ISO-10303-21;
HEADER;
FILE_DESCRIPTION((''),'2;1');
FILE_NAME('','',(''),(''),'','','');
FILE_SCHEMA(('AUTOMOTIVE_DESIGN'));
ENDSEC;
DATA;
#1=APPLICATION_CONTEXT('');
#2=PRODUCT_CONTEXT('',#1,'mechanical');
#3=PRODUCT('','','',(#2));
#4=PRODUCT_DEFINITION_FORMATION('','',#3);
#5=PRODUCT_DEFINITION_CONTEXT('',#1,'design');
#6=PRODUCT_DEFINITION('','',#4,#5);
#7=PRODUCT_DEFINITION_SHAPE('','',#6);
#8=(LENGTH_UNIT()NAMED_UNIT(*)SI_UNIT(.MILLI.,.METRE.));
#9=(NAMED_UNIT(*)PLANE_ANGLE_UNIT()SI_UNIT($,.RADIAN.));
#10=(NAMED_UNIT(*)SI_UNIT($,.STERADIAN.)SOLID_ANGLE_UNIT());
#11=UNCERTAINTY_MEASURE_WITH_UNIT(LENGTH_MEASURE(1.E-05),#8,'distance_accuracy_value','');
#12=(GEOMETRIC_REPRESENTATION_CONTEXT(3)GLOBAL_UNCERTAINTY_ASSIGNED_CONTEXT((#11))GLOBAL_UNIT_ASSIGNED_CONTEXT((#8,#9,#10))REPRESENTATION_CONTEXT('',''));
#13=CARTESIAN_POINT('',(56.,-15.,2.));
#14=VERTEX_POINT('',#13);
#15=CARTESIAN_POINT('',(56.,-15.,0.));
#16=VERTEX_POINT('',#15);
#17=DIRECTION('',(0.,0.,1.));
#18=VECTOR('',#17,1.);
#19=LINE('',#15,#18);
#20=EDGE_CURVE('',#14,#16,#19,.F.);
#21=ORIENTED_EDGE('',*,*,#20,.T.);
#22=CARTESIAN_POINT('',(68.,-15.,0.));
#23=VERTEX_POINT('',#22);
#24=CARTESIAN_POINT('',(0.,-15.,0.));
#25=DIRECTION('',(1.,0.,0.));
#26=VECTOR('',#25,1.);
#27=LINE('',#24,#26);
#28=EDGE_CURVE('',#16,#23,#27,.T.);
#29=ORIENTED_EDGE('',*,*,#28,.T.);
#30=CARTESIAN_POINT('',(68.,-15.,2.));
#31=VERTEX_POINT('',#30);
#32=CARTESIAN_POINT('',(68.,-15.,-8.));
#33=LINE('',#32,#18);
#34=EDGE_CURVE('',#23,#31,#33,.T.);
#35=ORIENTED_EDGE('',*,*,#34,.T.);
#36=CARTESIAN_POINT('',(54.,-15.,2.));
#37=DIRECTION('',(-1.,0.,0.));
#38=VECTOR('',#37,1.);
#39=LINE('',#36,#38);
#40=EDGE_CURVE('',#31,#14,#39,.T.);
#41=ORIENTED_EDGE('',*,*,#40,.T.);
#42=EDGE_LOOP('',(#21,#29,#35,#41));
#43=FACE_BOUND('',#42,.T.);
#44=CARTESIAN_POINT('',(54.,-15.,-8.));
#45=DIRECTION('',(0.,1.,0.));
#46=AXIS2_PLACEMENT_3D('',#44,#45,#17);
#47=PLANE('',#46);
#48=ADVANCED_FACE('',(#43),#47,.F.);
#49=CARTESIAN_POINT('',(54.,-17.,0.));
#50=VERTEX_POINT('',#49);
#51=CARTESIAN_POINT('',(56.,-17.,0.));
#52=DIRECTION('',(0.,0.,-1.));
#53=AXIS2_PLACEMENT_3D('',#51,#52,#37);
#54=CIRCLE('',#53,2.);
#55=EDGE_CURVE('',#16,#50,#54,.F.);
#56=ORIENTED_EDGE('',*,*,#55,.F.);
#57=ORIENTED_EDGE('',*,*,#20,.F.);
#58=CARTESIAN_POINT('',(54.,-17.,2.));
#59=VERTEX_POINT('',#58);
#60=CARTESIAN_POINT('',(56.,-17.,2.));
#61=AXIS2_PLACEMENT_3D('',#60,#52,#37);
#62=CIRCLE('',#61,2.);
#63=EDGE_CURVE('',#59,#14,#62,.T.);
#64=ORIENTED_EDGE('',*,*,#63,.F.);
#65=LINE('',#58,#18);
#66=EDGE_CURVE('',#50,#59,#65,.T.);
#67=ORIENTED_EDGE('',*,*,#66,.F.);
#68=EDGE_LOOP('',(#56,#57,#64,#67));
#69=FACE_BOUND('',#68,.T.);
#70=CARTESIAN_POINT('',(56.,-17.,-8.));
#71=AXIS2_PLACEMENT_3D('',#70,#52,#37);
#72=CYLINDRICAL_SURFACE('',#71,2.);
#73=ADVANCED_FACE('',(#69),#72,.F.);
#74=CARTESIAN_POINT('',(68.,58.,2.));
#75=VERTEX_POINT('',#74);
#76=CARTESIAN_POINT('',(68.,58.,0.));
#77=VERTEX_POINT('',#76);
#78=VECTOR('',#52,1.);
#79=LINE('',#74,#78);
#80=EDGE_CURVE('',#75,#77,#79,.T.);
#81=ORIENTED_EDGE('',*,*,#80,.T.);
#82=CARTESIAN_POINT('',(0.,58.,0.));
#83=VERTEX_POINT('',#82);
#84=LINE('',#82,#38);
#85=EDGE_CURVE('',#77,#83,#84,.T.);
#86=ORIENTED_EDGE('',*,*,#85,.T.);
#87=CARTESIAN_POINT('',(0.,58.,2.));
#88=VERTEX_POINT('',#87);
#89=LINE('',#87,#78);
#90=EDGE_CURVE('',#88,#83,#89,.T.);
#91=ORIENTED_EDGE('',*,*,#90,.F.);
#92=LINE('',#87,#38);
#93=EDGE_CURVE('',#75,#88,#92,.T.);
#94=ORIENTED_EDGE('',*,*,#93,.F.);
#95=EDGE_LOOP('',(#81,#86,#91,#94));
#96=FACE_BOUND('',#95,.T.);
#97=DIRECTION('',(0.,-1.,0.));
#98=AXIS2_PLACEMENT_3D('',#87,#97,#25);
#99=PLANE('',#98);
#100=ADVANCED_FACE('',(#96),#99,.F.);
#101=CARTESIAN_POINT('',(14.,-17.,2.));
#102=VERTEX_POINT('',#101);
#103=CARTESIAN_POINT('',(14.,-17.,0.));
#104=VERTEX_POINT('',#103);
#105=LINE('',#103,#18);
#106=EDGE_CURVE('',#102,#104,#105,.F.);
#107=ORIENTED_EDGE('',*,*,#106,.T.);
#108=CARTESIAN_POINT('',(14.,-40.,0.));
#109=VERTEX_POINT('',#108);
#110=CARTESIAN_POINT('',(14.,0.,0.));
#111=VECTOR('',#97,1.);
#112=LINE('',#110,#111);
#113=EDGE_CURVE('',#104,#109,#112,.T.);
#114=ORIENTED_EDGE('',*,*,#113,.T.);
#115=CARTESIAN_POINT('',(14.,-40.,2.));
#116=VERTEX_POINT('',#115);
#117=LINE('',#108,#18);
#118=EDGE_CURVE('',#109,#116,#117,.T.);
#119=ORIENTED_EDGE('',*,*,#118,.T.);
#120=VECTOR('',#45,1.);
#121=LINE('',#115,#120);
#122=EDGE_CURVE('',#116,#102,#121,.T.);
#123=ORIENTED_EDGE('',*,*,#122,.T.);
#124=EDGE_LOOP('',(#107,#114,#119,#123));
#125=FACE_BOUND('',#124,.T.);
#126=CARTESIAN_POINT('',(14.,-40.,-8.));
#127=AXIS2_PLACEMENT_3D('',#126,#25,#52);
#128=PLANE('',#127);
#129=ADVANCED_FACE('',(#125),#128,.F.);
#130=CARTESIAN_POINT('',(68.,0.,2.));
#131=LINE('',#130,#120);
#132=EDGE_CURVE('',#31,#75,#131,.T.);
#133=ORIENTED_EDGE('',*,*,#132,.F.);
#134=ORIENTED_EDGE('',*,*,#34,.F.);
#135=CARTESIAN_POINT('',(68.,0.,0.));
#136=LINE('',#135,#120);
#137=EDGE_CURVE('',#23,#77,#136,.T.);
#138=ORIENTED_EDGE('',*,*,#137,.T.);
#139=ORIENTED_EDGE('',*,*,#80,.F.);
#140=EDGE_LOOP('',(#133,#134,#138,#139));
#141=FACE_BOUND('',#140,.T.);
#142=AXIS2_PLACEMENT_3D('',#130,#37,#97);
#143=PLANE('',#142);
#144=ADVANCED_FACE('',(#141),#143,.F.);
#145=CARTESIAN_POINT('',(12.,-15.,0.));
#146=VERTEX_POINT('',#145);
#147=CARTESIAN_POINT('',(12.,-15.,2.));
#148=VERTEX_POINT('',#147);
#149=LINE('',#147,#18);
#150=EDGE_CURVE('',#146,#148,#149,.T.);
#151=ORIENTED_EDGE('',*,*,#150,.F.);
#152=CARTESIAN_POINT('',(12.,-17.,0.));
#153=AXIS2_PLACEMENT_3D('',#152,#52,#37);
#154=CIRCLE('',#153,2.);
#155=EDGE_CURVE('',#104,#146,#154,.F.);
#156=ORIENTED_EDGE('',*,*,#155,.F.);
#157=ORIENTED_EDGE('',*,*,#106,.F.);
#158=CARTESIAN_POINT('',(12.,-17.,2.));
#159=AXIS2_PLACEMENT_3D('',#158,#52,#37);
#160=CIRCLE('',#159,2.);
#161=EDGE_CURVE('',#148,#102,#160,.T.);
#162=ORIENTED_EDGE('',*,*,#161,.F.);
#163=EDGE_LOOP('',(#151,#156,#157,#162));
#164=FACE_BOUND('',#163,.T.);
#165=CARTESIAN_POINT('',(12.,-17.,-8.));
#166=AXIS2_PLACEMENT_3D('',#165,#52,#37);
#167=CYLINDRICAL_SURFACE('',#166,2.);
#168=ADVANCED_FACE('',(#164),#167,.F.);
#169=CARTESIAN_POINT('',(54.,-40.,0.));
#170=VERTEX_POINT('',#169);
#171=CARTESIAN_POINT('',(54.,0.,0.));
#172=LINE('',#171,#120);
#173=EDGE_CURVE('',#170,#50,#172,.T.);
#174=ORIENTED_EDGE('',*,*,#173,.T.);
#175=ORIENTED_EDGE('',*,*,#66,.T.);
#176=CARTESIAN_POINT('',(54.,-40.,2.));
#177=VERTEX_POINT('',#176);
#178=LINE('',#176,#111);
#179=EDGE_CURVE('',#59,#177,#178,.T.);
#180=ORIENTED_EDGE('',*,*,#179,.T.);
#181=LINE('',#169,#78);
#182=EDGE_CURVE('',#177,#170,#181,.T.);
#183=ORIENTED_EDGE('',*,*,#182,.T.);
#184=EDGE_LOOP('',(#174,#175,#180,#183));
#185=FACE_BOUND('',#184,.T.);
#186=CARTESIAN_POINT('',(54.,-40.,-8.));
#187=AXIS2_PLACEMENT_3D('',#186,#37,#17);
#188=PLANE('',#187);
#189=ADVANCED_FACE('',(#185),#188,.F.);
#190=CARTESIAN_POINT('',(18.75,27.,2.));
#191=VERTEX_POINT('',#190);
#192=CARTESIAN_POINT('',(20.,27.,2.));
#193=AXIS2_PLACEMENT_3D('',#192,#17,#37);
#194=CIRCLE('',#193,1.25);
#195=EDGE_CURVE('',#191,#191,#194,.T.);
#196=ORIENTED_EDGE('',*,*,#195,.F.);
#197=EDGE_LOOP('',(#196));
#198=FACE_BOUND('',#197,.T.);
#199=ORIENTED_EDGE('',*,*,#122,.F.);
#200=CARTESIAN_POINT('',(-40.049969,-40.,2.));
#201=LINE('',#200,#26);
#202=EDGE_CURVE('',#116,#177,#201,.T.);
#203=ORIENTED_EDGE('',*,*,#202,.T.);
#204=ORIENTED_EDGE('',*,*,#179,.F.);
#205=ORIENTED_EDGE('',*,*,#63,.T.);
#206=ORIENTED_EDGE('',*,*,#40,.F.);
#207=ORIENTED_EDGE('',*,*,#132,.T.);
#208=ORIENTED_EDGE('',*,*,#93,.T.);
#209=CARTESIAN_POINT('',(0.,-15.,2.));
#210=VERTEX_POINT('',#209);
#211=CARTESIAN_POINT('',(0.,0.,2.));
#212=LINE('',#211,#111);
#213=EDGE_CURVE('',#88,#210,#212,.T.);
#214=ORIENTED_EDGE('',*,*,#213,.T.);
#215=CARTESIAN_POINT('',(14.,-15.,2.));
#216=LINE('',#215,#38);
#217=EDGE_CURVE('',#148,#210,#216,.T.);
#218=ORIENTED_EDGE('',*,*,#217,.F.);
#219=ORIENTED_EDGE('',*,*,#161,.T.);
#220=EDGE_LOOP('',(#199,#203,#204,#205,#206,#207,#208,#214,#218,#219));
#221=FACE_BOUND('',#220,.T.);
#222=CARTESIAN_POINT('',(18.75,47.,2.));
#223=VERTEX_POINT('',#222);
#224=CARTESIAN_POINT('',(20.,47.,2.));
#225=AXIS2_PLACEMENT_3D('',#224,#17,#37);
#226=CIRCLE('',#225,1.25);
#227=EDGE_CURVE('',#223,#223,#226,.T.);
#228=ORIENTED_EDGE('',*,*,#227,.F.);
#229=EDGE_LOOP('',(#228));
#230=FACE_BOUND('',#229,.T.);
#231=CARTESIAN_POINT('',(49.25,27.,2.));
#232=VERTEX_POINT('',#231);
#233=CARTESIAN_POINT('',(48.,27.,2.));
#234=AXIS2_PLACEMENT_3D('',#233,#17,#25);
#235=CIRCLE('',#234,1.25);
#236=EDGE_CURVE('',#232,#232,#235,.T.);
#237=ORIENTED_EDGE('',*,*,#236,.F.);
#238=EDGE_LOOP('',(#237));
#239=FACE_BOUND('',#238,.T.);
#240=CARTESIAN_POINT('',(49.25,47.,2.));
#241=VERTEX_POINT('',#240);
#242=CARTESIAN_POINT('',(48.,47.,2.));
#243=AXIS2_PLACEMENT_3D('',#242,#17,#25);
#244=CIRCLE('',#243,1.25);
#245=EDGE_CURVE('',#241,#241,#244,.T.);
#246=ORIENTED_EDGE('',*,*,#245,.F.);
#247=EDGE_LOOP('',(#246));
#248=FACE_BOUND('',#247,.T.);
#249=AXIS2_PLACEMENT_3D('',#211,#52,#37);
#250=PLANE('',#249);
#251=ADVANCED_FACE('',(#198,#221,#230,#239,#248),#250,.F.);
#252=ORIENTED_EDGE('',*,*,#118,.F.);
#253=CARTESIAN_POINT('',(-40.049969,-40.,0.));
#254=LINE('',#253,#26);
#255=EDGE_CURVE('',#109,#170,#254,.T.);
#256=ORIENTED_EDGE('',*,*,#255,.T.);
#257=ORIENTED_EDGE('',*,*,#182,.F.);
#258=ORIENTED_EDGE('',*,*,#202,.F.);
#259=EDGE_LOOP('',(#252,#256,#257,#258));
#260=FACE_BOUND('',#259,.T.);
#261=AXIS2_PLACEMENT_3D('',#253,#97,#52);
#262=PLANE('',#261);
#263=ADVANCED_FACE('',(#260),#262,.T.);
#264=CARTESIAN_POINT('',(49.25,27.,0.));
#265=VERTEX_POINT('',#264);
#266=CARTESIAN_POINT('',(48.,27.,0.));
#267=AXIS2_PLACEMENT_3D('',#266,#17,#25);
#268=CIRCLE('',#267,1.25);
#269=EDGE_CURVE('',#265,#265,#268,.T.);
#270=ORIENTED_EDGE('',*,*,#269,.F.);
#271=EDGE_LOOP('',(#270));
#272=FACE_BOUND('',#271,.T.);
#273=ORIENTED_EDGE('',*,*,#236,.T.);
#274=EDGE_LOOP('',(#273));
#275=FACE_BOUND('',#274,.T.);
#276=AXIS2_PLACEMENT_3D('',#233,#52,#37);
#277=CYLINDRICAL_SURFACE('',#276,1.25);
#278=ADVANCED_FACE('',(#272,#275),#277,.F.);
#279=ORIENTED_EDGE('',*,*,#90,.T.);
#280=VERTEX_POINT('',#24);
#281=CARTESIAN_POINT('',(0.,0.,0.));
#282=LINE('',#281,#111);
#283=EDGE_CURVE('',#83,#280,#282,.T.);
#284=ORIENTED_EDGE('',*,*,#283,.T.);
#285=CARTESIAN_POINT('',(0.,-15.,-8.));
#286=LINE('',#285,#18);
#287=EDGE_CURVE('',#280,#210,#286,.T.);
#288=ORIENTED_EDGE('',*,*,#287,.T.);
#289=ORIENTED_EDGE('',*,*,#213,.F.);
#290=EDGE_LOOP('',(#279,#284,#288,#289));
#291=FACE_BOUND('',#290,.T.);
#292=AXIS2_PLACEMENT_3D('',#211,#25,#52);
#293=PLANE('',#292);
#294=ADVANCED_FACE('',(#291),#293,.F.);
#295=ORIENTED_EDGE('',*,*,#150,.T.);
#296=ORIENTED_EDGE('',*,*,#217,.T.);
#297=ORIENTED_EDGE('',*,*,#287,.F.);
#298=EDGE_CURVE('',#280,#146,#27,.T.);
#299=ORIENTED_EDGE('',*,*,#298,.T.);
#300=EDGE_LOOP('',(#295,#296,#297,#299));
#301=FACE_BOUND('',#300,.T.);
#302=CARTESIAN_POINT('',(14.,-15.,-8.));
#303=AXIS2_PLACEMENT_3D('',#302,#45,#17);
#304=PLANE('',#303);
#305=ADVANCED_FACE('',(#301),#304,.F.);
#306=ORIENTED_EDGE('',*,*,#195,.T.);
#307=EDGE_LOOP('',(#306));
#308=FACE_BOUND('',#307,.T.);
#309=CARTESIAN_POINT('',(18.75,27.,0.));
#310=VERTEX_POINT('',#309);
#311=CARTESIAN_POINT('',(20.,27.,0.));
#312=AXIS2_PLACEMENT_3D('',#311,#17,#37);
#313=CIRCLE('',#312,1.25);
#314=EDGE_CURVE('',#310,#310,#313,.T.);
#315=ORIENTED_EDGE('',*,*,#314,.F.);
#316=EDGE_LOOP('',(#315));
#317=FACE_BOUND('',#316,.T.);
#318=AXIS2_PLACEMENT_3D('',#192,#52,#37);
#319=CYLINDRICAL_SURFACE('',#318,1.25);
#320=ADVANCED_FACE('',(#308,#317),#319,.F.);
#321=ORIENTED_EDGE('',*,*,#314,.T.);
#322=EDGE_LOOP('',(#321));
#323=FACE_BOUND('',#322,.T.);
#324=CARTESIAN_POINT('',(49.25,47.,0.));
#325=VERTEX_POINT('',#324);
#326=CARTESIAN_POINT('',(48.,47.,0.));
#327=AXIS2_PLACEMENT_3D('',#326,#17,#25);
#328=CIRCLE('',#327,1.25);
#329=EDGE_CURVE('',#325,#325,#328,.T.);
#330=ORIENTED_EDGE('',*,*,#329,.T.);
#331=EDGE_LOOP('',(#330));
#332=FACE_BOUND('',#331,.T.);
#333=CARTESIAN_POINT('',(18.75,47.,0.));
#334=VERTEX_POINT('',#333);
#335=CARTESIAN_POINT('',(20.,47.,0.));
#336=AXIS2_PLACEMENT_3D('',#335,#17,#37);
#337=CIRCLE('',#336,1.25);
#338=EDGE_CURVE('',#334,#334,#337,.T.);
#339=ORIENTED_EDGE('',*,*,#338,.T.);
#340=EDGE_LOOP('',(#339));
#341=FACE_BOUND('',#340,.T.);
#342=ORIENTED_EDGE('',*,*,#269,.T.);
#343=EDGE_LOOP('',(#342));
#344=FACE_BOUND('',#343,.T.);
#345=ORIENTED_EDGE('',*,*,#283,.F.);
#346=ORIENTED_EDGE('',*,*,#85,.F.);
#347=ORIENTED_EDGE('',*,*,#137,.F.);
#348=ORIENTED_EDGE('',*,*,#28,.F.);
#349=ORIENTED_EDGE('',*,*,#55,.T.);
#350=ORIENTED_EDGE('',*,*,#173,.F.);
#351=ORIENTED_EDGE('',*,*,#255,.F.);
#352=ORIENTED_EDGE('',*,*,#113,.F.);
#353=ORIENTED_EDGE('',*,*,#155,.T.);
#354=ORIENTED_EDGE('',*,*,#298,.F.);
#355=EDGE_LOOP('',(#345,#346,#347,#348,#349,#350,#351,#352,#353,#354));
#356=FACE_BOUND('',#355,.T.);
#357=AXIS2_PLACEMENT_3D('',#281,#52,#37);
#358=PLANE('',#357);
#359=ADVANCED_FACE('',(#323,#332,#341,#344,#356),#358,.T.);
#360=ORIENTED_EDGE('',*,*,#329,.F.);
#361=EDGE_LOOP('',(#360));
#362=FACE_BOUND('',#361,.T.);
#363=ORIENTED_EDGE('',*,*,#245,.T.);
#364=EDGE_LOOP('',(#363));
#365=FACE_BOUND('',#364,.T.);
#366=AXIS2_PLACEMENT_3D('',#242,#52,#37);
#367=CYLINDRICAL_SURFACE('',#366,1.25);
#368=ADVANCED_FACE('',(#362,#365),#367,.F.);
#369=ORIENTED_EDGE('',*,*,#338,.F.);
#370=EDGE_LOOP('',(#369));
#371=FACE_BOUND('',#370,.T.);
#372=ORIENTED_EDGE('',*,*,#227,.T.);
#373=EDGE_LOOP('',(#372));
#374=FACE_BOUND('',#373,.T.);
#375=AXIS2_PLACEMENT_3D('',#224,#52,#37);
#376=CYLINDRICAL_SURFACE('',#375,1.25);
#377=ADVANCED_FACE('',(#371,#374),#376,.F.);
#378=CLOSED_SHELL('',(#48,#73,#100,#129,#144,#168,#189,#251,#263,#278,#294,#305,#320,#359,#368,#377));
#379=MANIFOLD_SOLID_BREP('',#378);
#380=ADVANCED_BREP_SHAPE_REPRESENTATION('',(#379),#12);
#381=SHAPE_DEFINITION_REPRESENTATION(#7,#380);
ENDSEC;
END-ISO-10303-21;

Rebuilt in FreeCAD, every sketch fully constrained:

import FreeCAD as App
import Part
import Sketcher

V = App.Vector
Q = App.Units.Quantity


def edges_at(feature, points):
    """Names of the edges that pass closest to the given points."""
    edges = feature.Shape.Edges
    near = lambda p: min(range(len(edges)), key=lambda i: edges[i].distToShape(Part.Vertex(*p))[0])
    return sorted({f"Edge{near(p) + 1}" for p in points})


def add_polygon(sketch, points):
    """Adds a closed chain of lines whose ends are joined by coincident constraints."""
    first, n = sketch.GeometryCount, len(points)
    for a, b in zip(points, points[1:] + points[:1]):
        sketch.addGeometry(Part.LineSegment(App.Vector(*a, 0), App.Vector(*b, 0)), False)
    for i in range(n):
        sketch.addConstraint(Sketcher.Constraint("Coincident", first + i, 2, first + (i + 1) % n, 1))

doc = App.newDocument("Part")
body = doc.addObject("PartDesign::Body", "Body")

# Sketch on XY plane
sketch1 = body.newObject("Sketcher::SketchObject", "Sketch")
sketch1.AttachmentSupport = (doc.getObject("XY_Plane"), [""])
sketch1.MapMode = "FlatFace"
add_polygon(sketch1, [(0, 58), (0, 0), (68, 0), (68, 58)])  # lines 0-3
sketch1.addGeometry(Part.Circle(V(20, 27, 0), V(0, 0, 1), 1.2), False)  # 4
sketch1.addGeometry(Part.Circle(V(48, 27, 0), V(0, 0, 1), 1.2), False)  # 5
sketch1.addGeometry(Part.Circle(V(20, 47, 0), V(0, 0, 1), 1.2), False)  # 6
sketch1.addGeometry(Part.Circle(V(48, 47, 0), V(0, 0, 1), 1.2), False)  # 7
sketch1.addConstraint(Sketcher.Constraint("Vertical", 0))
sketch1.addConstraint(Sketcher.Constraint("Horizontal", 1))
sketch1.addConstraint(Sketcher.Constraint("Vertical", 2))
sketch1.addConstraint(Sketcher.Constraint("Horizontal", 3))
sketch1.addConstraint(Sketcher.Constraint("Coincident", 0, 2, -1, 1))
sketch1.addConstraint(Sketcher.Constraint("Equal", 4, 5))
sketch1.addConstraint(Sketcher.Constraint("Equal", 5, 6))
sketch1.addConstraint(Sketcher.Constraint("Equal", 6, 7))
sketch1.addConstraint(Sketcher.Constraint("Horizontal", 4, 3, 5, 3))
sketch1.addConstraint(Sketcher.Constraint("Horizontal", 6, 3, 7, 3))
sketch1.addConstraint(Sketcher.Constraint("Vertical", 4, 3, 6, 3))
sketch1.addConstraint(Sketcher.Constraint("Vertical", 5, 3, 7, 3))
sketch1.addConstraint(Sketcher.Constraint("Diameter", 4, Q("2.5 mm")))
sketch1.addConstraint(Sketcher.Constraint("DistanceX", 1, 1, 1, 2, Q("68 mm")))
sketch1.addConstraint(Sketcher.Constraint("DistanceY", 0, 2, 0, 1, Q("58 mm")))
sketch1.addConstraint(Sketcher.Constraint("DistanceX", -1, 1, 4, 3, Q("20 mm")))
sketch1.addConstraint(Sketcher.Constraint("DistanceY", -1, 1, 4, 3, Q("27 mm")))
sketch1.addConstraint(Sketcher.Constraint("DistanceX", -1, 1, 5, 3, Q("48 mm")))
sketch1.addConstraint(Sketcher.Constraint("DistanceY", -1, 1, 6, 3, Q("47 mm")))
pad1 = body.newObject("PartDesign::Pad", "Pad")
pad1.Profile = sketch1
pad1.Length = 2

# Sketch on YZ plane
sketch2 = body.newObject("Sketcher::SketchObject", "Sketch001")
sketch2.AttachmentSupport = (doc.getObject("YZ_Plane"), [""])
sketch2.MapMode = "FlatFace"
sketch2.AttachmentOffset = App.Placement(V(0, 0, 68), App.Rotation())
add_polygon(sketch2, [(0, 2), (-40, 2), (-40, 0), (0, 0)])  # lines 0-3
sketch2.addConstraint(Sketcher.Constraint("Horizontal", 0))
sketch2.addConstraint(Sketcher.Constraint("Vertical", 1))
sketch2.addConstraint(Sketcher.Constraint("Horizontal", 2))
sketch2.addConstraint(Sketcher.Constraint("Vertical", 3))
sketch2.addConstraint(Sketcher.Constraint("Coincident", 2, 2, -1, 1))
sketch2.addConstraint(Sketcher.Constraint("DistanceX", 0, 2, 0, 1, Q("40 mm")))
sketch2.addConstraint(Sketcher.Constraint("DistanceY", 1, 2, 1, 1, Q("2 mm")))
pad2 = body.newObject("PartDesign::Pad", "Pad001")
pad2.Profile = sketch2
pad2.Length = 68
pad2.Reversed = True

# Sketch on XY plane
sketch3 = body.newObject("Sketcher::SketchObject", "Sketch002")
sketch3.AttachmentSupport = (doc.getObject("XY_Plane"), [""])
sketch3.MapMode = "FlatFace"
sketch3.AttachmentOffset = App.Placement(V(0, 0, 2), App.Rotation())
add_polygon(sketch3, [(54, -15), (54, -40), (68, -40), (68, -15)])  # lines 0-3
add_polygon(sketch3, [(0, -15), (0, -40), (14, -40), (14, -15)])  # lines 4-7
sketch3.addConstraint(Sketcher.Constraint("Vertical", 0))
sketch3.addConstraint(Sketcher.Constraint("Horizontal", 1))
sketch3.addConstraint(Sketcher.Constraint("Vertical", 2))
sketch3.addConstraint(Sketcher.Constraint("Horizontal", 3))
sketch3.addConstraint(Sketcher.Constraint("Vertical", 4))
sketch3.addConstraint(Sketcher.Constraint("Horizontal", 5))
sketch3.addConstraint(Sketcher.Constraint("Vertical", 6))
sketch3.addConstraint(Sketcher.Constraint("Horizontal", 7))
sketch3.addConstraint(Sketcher.Constraint("PointOnObject", 4, 2, -2))
sketch3.addConstraint(Sketcher.Constraint("Horizontal", 1, 2, 4, 2))
sketch3.addConstraint(Sketcher.Constraint("Horizontal", 3, 2, 6, 2))
sketch3.addConstraint(Sketcher.Constraint("Equal", 3, 5))
sketch3.addConstraint(Sketcher.Constraint("DistanceX", 1, 1, 1, 2, Q("14 mm")))
sketch3.addConstraint(Sketcher.Constraint("DistanceY", 0, 2, 0, 1, Q("25 mm")))
sketch3.addConstraint(Sketcher.Constraint("DistanceX", -1, 1, 0, 2, Q("54 mm")))
sketch3.addConstraint(Sketcher.Constraint("DistanceY", 0, 2, -1, 1, Q("40 mm")))
pocket1 = body.newObject("PartDesign::Pocket", "Pocket")
pocket1.Profile = sketch3
pocket1.Length = 10
doc.recompute()

fillet = body.newObject("PartDesign::Fillet", "Fillet")
fillet.Base = (pocket1, edges_at(pocket1, [(54, -15, 1), (14, -15, 1)]))
fillet.Radius = 2

doc.recompute()
